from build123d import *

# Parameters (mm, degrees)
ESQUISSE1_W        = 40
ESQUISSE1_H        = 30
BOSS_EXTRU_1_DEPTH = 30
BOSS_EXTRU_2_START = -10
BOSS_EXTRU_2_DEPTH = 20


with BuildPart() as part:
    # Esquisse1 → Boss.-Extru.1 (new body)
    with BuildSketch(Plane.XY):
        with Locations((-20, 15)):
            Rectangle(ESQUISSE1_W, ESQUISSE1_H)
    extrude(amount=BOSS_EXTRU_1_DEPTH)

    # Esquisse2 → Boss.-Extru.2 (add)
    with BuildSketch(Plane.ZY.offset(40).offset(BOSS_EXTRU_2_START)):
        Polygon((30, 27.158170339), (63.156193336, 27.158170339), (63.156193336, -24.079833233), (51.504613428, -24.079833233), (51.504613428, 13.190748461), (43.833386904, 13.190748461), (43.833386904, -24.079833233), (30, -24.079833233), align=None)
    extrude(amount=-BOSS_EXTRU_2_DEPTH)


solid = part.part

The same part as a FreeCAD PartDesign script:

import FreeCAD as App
import Part
import Sketcher
from FreeCAD import Vector


def add_polygon(sketch, points):
    """Adds a closed chain of lines whose ends are joined by coincident constraints."""
    first, n = sketch.GeometryCount, len(points)
    for a, b in zip(points, points[1:] + points[:1]):
        sketch.addGeometry(Part.LineSegment(App.Vector(*a, 0), App.Vector(*b, 0)), False)
    for i in range(n):
        sketch.addConstraint(Sketcher.Constraint("Coincident", first + i, 2, first + (i + 1) % n, 1))

doc = App.newDocument("Part")
body = doc.addObject("PartDesign::Body", "Body")

sketch1 = body.newObject("Sketcher::SketchObject", "Sketch")
sketch1.AttachmentSupport = (doc.getObject("XY_Plane"), [""])
sketch1.MapMode = "FlatFace"
add_polygon(sketch1, [(-40, 30), (-40, 0), (0, 0), (0, 30)])
sketch1.addConstraint([
    Sketcher.Constraint("Vertical", 0),
    Sketcher.Constraint("Horizontal", 1),
    Sketcher.Constraint("Vertical", 2),
    Sketcher.Constraint("Horizontal", 3),
    Sketcher.Constraint("Coincident", 1, 2, -1, 1),
    Sketcher.Constraint("DistanceX", 1, 1, 1, 2, 40.0),
    Sketcher.Constraint("DistanceY", 0, 2, 0, 1, 30.0),
])
pad1 = body.newObject("PartDesign::Pad", "Pad")
pad1.Profile = sketch1
pad1.Length = 30

sketch2 = body.newObject("Sketcher::SketchObject", "Sketch001")
sketch2.AttachmentSupport = (doc.getObject("YZ_Plane"), [""])
sketch2.MapMode = "FlatFace"
sketch2.AttachmentOffset = App.Placement(Vector(0, 0, -30), App.Rotation())
add_polygon(sketch2, [(27, 63), (27, 30), (-24, 30), (-24, 44), (13, 44), (13, 52), (-24, 52), (-24, 63)])
sketch2.addConstraint([
    Sketcher.Constraint("Vertical", 0),
    Sketcher.Constraint("Horizontal", 1),
    Sketcher.Constraint("Vertical", 2),
    Sketcher.Constraint("Horizontal", 3),
    Sketcher.Constraint("Vertical", 4),
    Sketcher.Constraint("Horizontal", 5),
    Sketcher.Constraint("Vertical", 6),
    Sketcher.Constraint("Horizontal", 7),
    Sketcher.Constraint("Vertical", 2, 2, 5, 2),
    Sketcher.Constraint("DistanceY", -1, 1, 0, 2, 30.0),
    Sketcher.Constraint("DistanceX", 3, 1, 3, 2, 37.270582),
    Sketcher.Constraint("DistanceY", 6, 1, 6, 2, 11.65158),
    Sketcher.Constraint("DistanceX", 1, 2, 1, 1, 51.238004),
    Sketcher.Constraint("DistanceY", 0, 2, 0, 1, 33.156193),
    Sketcher.Constraint("DistanceY", 2, 1, 2, 2, 13.833387),
    Sketcher.Constraint("DistanceX", -1, 1, 0, 2, 27.15817),
])
pad2 = body.newObject("PartDesign::Pad", "Pad001")
pad2.Profile = sketch2
pad2.Length = 20

doc.recompute()
